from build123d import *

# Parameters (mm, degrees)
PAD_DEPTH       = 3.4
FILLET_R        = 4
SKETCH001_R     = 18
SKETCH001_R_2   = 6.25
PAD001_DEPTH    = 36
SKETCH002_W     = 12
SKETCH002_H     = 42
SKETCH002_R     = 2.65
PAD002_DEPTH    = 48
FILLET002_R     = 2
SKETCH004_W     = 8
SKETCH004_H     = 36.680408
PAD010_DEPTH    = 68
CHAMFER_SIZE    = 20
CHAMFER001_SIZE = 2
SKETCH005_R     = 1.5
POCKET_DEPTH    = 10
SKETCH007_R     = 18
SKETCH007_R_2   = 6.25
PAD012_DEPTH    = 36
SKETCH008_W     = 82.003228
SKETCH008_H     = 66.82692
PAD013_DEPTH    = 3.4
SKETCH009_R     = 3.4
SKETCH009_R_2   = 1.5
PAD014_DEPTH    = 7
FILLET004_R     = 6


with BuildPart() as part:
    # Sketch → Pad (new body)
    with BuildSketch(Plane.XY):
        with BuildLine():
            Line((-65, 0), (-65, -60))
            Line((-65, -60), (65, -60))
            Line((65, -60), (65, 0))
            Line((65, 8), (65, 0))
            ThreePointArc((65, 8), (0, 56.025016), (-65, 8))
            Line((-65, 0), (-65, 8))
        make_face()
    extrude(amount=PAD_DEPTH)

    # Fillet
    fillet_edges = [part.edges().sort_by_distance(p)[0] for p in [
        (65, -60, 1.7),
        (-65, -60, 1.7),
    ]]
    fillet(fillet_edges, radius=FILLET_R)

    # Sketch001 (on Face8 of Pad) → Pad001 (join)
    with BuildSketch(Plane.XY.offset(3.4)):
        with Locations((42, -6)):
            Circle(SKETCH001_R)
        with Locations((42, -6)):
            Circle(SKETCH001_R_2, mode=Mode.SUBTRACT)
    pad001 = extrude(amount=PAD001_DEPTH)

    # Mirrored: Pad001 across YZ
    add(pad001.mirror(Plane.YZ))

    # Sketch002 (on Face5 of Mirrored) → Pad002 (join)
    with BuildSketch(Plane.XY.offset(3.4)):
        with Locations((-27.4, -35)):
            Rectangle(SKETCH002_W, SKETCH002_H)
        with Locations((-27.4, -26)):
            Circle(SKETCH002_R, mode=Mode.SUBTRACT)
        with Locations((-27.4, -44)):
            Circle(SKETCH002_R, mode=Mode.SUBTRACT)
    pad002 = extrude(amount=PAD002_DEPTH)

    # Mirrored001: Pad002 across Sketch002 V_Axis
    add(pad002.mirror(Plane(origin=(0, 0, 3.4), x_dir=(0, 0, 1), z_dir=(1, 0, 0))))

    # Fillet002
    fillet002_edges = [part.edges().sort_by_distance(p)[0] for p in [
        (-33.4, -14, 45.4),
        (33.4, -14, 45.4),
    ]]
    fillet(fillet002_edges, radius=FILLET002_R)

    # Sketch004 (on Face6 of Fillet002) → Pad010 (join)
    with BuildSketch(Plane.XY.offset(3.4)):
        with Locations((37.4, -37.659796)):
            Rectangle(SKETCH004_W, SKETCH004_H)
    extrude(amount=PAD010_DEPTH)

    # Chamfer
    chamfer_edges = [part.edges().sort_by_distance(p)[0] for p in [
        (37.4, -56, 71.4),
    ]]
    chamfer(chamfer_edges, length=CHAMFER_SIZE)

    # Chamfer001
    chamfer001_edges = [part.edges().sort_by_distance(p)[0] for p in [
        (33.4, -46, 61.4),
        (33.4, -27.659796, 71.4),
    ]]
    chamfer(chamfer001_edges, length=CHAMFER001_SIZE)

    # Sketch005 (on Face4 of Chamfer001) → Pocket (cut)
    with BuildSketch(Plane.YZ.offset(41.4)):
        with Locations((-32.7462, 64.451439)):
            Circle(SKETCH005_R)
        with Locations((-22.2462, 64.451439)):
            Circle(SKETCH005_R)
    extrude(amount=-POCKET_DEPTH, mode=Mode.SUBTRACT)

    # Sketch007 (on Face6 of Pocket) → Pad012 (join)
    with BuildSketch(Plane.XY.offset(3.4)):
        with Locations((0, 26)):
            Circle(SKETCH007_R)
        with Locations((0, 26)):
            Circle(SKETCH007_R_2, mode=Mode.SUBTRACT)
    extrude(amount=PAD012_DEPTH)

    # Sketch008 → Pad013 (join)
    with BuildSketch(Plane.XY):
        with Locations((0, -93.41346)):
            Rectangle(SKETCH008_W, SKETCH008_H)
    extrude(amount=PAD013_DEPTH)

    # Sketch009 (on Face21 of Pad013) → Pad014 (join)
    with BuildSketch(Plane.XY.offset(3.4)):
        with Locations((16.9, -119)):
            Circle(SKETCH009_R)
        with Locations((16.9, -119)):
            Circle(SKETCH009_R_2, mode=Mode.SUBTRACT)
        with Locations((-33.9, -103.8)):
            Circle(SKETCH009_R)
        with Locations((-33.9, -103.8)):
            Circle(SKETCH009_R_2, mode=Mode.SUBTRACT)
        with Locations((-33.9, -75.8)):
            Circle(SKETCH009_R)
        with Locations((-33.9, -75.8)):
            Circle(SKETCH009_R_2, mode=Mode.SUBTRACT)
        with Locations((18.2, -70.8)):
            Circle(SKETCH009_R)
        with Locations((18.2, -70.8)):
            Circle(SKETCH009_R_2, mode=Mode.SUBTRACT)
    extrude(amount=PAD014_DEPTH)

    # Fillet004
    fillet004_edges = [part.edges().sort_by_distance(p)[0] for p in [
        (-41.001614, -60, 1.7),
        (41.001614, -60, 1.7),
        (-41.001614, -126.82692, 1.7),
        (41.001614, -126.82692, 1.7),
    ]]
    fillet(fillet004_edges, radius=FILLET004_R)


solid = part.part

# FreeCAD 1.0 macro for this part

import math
import FreeCAD as App
import Part
import Sketcher
Q = App.Units.Quantity


def edges_at(feature, points):
    """Names of the edges that pass closest to the given points."""
    edges = feature.Shape.Edges
    near = lambda p: min(range(len(edges)), key=lambda i: edges[i].distToShape(Part.Vertex(*p))[0])
    return sorted({f"Edge{near(p) + 1}" for p in points})


def add_polygon(sketch, points):
    """Adds a closed chain of lines whose ends are joined by coincident constraints."""
    first, n = sketch.GeometryCount, len(points)
    for a, b in zip(points, points[1:] + points[:1]):
        sketch.addGeometry(Part.LineSegment(App.Vector(*a, 0), App.Vector(*b, 0)), False)
    for i in range(n):
        sketch.addConstraint(Sketcher.Constraint("Coincident", first + i, 2, first + (i + 1) % n, 1))

doc = App.newDocument("Part")
body = doc.addObject("PartDesign::Body", "Body")

# Sketch on XY plane
sketch1 = body.newObject("Sketcher::SketchObject", "Sketch")
sketch1.AttachmentSupport = (doc.getObject("XY_Plane"), [""])
sketch1.MapMode = "FlatFace"
sketch1.addGeometry([
    Part.LineSegment(App.Vector(-65, -60, 0), App.Vector(65, -60, 0)),
    Part.LineSegment(App.Vector(65, -60, 0), App.Vector(65, 8, 0)),
    Part.ArcOfCircle(Part.Circle(App.Vector(0, -11.974984, 0), App.Vector(0, 0, 1), 68), math.radians(17.082583), math.radians(162.917417)),
    Part.LineSegment(App.Vector(-65, 8, 0), App.Vector(-65, -60, 0)),
], False)
sketch1.addConstraint([
    Sketcher.Constraint("Coincident", 0, 2, 1, 1),
    Sketcher.Constraint("Coincident", 1, 2, 2, 1),
    Sketcher.Constraint("Coincident", 2, 2, 3, 1),
    Sketcher.Constraint("Coincident", 3, 2, 0, 1),
    Sketcher.Constraint("Horizontal", 0),
    Sketcher.Constraint("Vertical", 1),
    Sketcher.Constraint("Vertical", 3),
    Sketcher.Constraint("Symmetric", 1, 2, 2, 2, -2),
    Sketcher.Constraint("Radius", 2, Q("68 mm")),
    Sketcher.Constraint("DistanceX", 0, 1, 0, 2, Q("130 mm")),
    Sketcher.Constraint("DistanceY", 1, 1, 1, 2, Q("68 mm")),
    Sketcher.Constraint("DistanceY", 0, 2, -1, 1, Q("60 mm")),
])
pad1 = body.newObject("PartDesign::Pad", "Pad")
pad1.Profile = sketch1
pad1.Length = 3.4
doc.recompute()

fillet = body.newObject("PartDesign::Fillet", "Fillet")
fillet.Base = (pad1, edges_at(pad1, [(65, -60, 1.7), (-65, -60, 1.7)]))
fillet.Radius = 4

# Sketch on XY plane
sketch2 = body.newObject("Sketcher::SketchObject", "Sketch001")
sketch2.AttachmentSupport = (doc.getObject("XY_Plane"), [""])
sketch2.MapMode = "FlatFace"
sketch2.AttachmentOffset = App.Placement(App.Vector(0, 0, 3.4), App.Rotation())
sketch2.addGeometry([
    Part.Circle(App.Vector(42, -6, 0), App.Vector(0, 0, 1), 18),
    Part.Circle(App.Vector(42, -6, 0), App.Vector(0, 0, 1), 6.25),
], False)
sketch2.addConstraint([
    Sketcher.Constraint("Coincident", 1, 3, 0, 3),
    Sketcher.Constraint("Diameter", 0, Q("36 mm")),
    Sketcher.Constraint("Diameter", 1, Q("12.5 mm")),
    Sketcher.Constraint("DistanceX", -1, 1, 0, 3, Q("42 mm")),
    Sketcher.Constraint("DistanceY", 0, 3, -1, 1, Q("6 mm")),
])
pad2 = body.newObject("PartDesign::Pad", "Pad001")
pad2.Profile = sketch2
pad2.Length = 36
doc.recompute()

mirrored = body.newObject("PartDesign::Mirrored", "Mirrored")
mirrored.Originals = [pad2]
mirrored.MirrorPlane = (doc.getObject("YZ_Plane"), [""])
body.Tip = mirrored

# Sketch on XY plane
sketch3 = body.newObject("Sketcher::SketchObject", "Sketch002")
sketch3.AttachmentSupport = (doc.getObject("XY_Plane"), [""])
sketch3.MapMode = "FlatFace"
sketch3.AttachmentOffset = App.Placement(App.Vector(0, 0, 3.4), App.Rotation())
add_polygon(sketch3, [(-33.4, -14), (-33.4, -56), (-21.4, -56), (-21.4, -14)])  # lines 0-3
sketch3.addGeometry(Part.Circle(App.Vector(-27.4, -44, 0), App.Vector(0, 0, 1), 2.65), False)  # 4
sketch3.addGeometry(Part.Circle(App.Vector(-27.4, -26, 0), App.Vector(0, 0, 1), 2.65), False)  # 5
sketch3.addConstraint([
    Sketcher.Constraint("Vertical", 0),
    Sketcher.Constraint("Horizontal", 1),
    Sketcher.Constraint("Vertical", 2),
    Sketcher.Constraint("Horizontal", 3),
    Sketcher.Constraint("Equal", 4, 5),
    Sketcher.Constraint("Vertical", 4, 3, 5, 3),
    Sketcher.Constraint("Diameter", 4, Q("5.3 mm")),
    Sketcher.Constraint("DistanceX", 1, 1, 1, 2, Q("12 mm")),
    Sketcher.Constraint("DistanceY", 0, 2, 0, 1, Q("42 mm")),
    Sketcher.Constraint("DistanceY", 4, 3, -1, 1, Q("44 mm")),
    Sketcher.Constraint("DistanceY", 5, 3, -1, 1, Q("26 mm")),
    Sketcher.Constraint("DistanceY", 0, 2, -1, 1, Q("56 mm")),
    Sketcher.Constraint("DistanceX", 0, 2, 4, 3, Q("6 mm")),
    Sketcher.Constraint("DistanceX", 4, 3, -1, 1, Q("27.4 mm")),
])
pad3 = body.newObject("PartDesign::Pad", "Pad002")
pad3.Profile = sketch3
pad3.Length = 48
doc.recompute()

mirrored2 = body.newObject("PartDesign::Mirrored", "Mirrored001")
mirrored2.Originals = [pad3]
mirrored2.MirrorPlane = (doc.getObject("YZ_Plane"), [""])
body.Tip = mirrored2
doc.recompute()

fillet2 = body.newObject("PartDesign::Fillet", "Fillet001")
fillet2.Base = (mirrored2, edges_at(mirrored2, [(-33.4, -14, 45.4), (33.4, -14, 45.4)]))
fillet2.Radius = 2

# Sketch on XY plane
sketch4 = body.newObject("Sketcher::SketchObject", "Sketch003")
sketch4.AttachmentSupport = (doc.getObject("XY_Plane"), [""])
sketch4.MapMode = "FlatFace"
sketch4.AttachmentOffset = App.Placement(App.Vector(0, 0, 3.4), App.Rotation())
add_polygon(sketch4, [(33.4, -19.319592), (33.4, -56), (41.4, -56), (41.4, -19.319592)])  # lines 0-3
sketch4.addConstraint([
    Sketcher.Constraint("Vertical", 0),
    Sketcher.Constraint("Horizontal", 1),
    Sketcher.Constraint("Vertical", 2),
    Sketcher.Constraint("Horizontal", 3),
    Sketcher.Constraint("DistanceX", 1, 1, 1, 2, Q("8 mm")),
    Sketcher.Constraint("DistanceY", 0, 2, -1, 1, Q("56 mm")),
    Sketcher.Constraint("DistanceX", -1, 1, 0, 2, Q("33.4 mm")),
    Sketcher.Constraint("DistanceY", 0, 2, 0, 1, Q("36.680408 mm")),
])
pad4 = body.newObject("PartDesign::Pad", "Pad003")
pad4.Profile = sketch4
pad4.Length = 68
doc.recompute()

chamfer = body.newObject("PartDesign::Chamfer", "Chamfer")
chamfer.Base = (pad4, edges_at(pad4, [(37.4, -56, 71.4)]))
chamfer.Size = 20
doc.recompute()

chamfer2 = body.newObject("PartDesign::Chamfer", "Chamfer001")
chamfer2.Base = (chamfer, edges_at(chamfer, [(33.4, -46, 61.4), (33.4, -27.66, 71.4)]))
chamfer2.Size = 2

# Sketch on YZ plane
sketch5 = body.newObject("Sketcher::SketchObject", "Sketch004")
sketch5.AttachmentSupport = (doc.getObject("YZ_Plane"), [""])
sketch5.MapMode = "FlatFace"
sketch5.AttachmentOffset = App.Placement(App.Vector(0, 0, 41.4), App.Rotation())
sketch5.addGeometry([
    Part.Circle(App.Vector(-32.7462, 64.451439, 0), App.Vector(0, 0, 1), 1.5),
    Part.Circle(App.Vector(-22.2462, 64.451439, 0), App.Vector(0, 0, 1), 1.5),
], False)
sketch5.addConstraint([
    Sketcher.Constraint("Equal", 0, 1),
    Sketcher.Constraint("Horizontal", 0, 3, 1, 3),
    Sketcher.Constraint("Diameter", 0, Q("3 mm")),
    Sketcher.Constraint("DistanceX", 0, 3, 1, 3, Q("10.5 mm")),
    Sketcher.Constraint("DistanceX", 0, 3, -1, 1, Q("32.7462 mm")),
    Sketcher.Constraint("DistanceY", -1, 1, 0, 3, Q("64.451439 mm")),
])
pocket1 = body.newObject("PartDesign::Pocket", "Pocket")
pocket1.Profile = sketch5
pocket1.Length = 10

# Sketch on XY plane
sketch6 = body.newObject("Sketcher::SketchObject", "Sketch005")
sketch6.AttachmentSupport = (doc.getObject("XY_Plane"), [""])
sketch6.MapMode = "FlatFace"
sketch6.AttachmentOffset = App.Placement(App.Vector(0, 0, 3.4), App.Rotation())
sketch6.addGeometry([
    Part.Circle(App.Vector(0, 26, 0), App.Vector(0, 0, 1), 18),
    Part.Circle(App.Vector(0, 26, 0), App.Vector(0, 0, 1), 6.25),
], False)
sketch6.addConstraint([
    Sketcher.Constraint("Coincident", 1, 3, 0, 3),
    Sketcher.Constraint("PointOnObject", 0, 3, -2),
    Sketcher.Constraint("Diameter", 0, Q("36 mm")),
    Sketcher.Constraint("Diameter", 1, Q("12.5 mm")),
    Sketcher.Constraint("DistanceY", -1, 1, 0, 3, Q("26 mm")),
])
pad5 = body.newObject("PartDesign::Pad", "Pad004")
pad5.Profile = sketch6
pad5.Length = 36

# Sketch on XY plane
sketch7 = body.newObject("Sketcher::SketchObject", "Sketch006")
sketch7.AttachmentSupport = (doc.getObject("XY_Plane"), [""])
sketch7.MapMode = "FlatFace"
add_polygon(sketch7, [(-41.001614, -60), (-41.001614, -126.82692), (41.001614, -126.82692), (41.001614, -60)])  # lines 0-3
sketch7.addConstraint([
    Sketcher.Constraint("Vertical", 0),
    Sketcher.Constraint("Horizontal", 1),
    Sketcher.Constraint("Vertical", 2),
    Sketcher.Constraint("Horizontal", 3),
    Sketcher.Constraint("DistanceY", 2, 2, -1, 1, Q("60 mm")),
    Sketcher.Constraint("DistanceY", 0, 2, 0, 1, Q("66.82692 mm")),
    Sketcher.Constraint("DistanceX", 1, 1, 1, 2, Q("82.003228 mm")),
    Sketcher.Constraint("DistanceX", 0, 2, -1, 1, Q("41.001614 mm")),
])
pad6 = body.newObject("PartDesign::Pad", "Pad005")
pad6.Profile = sketch7
pad6.Length = 3.4

# Sketch on XY plane
sketch8 = body.newObject("Sketcher::SketchObject", "Sketch007")
sketch8.AttachmentSupport = (doc.getObject("XY_Plane"), [""])
sketch8.MapMode = "FlatFace"
sketch8.AttachmentOffset = App.Placement(App.Vector(0, 0, 3.4), App.Rotation())
sketch8.addGeometry([
    Part.Circle(App.Vector(16.9, -119, 0), App.Vector(0, 0, 1), 3.4),  # 0
    Part.Circle(App.Vector(16.9, -119, 0), App.Vector(0, 0, 1), 1.5),  # 1
    Part.Circle(App.Vector(-33.9, -103.8, 0), App.Vector(0, 0, 1), 3.4),  # 2
    Part.Circle(App.Vector(-33.9, -103.8, 0), App.Vector(0, 0, 1), 1.5),  # 3
    Part.Circle(App.Vector(-33.9, -75.8, 0), App.Vector(0, 0, 1), 3.4),  # 4
    Part.Circle(App.Vector(-33.9, -75.8, 0), App.Vector(0, 0, 1), 1.5),  # 5
    Part.Circle(App.Vector(18.2, -70.8, 0), App.Vector(0, 0, 1), 3.4),  # 6
    Part.Circle(App.Vector(18.2, -70.8, 0), App.Vector(0, 0, 1), 1.5),  # 7
], False)
sketch8.addConstraint([
    Sketcher.Constraint("Coincident", 1, 3, 0, 3),
    Sketcher.Constraint("Coincident", 3, 3, 2, 3),
    Sketcher.Constraint("Coincident", 5, 3, 4, 3),
    Sketcher.Constraint("Coincident", 7, 3, 6, 3),
    Sketcher.Constraint("Equal", 0, 2),
    Sketcher.Constraint("Equal", 1, 3),
    Sketcher.Constraint("Equal", 2, 4),
    Sketcher.Constraint("Equal", 3, 5),
    Sketcher.Constraint("Equal", 4, 6),
    Sketcher.Constraint("Equal", 5, 7),
    Sketcher.Constraint("Vertical", 3, 3, 4, 3),
    Sketcher.Constraint("Diameter", 1, Q("3 mm")),
    Sketcher.Constraint("Diameter", 0, Q("6.8 mm")),
    Sketcher.Constraint("DistanceY", 0, 3, -1, 1, Q("119 mm")),
    Sketcher.Constraint("DistanceY", 2, 3, 4, 3, Q("28 mm")),
    Sketcher.Constraint("DistanceY", 4, 3, 6, 3, Q("5 mm")),
    Sketcher.Constraint("DistanceX", -1, 1, 0, 3, Q("16.9 mm")),
    Sketcher.Constraint("DistanceX", 2, 3, -1, 1, Q("33.9 mm")),
    Sketcher.Constraint("DistanceY", 2, 3, -1, 1, Q("103.8 mm")),
    Sketcher.Constraint("DistanceX", -1, 1, 6, 3, Q("18.2 mm")),
])
pad7 = body.newObject("PartDesign::Pad", "Pad006")
pad7.Profile = sketch8
pad7.Length = 7
doc.recompute()

fillet3 = body.newObject("PartDesign::Fillet", "Fillet002")
fillet3.Base = (pad7, edges_at(pad7, [
    (-41.002, -60, 1.7),
    (41.002, -60, 1.7),
    (-41.002, -126.827, 1.7),
    (41.002, -126.827, 1.7),
]))
fillet3.Radius = 6

doc.recompute()
